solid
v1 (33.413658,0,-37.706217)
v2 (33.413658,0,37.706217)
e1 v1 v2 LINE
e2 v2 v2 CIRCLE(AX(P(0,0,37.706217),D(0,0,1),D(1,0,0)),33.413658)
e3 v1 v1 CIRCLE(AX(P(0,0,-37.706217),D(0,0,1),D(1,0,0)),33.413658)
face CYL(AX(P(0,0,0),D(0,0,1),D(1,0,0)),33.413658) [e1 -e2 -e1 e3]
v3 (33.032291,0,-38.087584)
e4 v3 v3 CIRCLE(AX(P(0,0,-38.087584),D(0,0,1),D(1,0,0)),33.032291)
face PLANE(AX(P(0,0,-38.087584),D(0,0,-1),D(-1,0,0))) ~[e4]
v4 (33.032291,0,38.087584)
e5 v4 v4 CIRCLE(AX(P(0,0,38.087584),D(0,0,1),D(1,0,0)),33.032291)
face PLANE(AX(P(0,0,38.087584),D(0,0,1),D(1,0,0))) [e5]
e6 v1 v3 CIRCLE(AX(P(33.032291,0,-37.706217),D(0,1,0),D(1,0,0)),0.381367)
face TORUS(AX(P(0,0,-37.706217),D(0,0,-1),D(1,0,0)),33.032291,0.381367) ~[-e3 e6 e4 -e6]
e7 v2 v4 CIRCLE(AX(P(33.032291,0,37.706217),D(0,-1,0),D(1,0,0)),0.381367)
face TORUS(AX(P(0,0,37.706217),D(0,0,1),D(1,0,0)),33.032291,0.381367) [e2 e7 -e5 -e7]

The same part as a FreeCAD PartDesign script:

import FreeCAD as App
import Part
import Sketcher
from FreeCAD import Vector
Q = App.Units.Quantity


def edges_at(feature, points):
    """Names of the edges that pass closest to the given points."""
    edges = feature.Shape.Edges
    near = lambda p: min(range(len(edges)), key=lambda i: edges[i].distToShape(Part.Vertex(*p))[0])
    return sorted({f"Edge{near(p) + 1}" for p in points})

doc = App.newDocument("Part")
body = doc.addObject("PartDesign::Body", "Body")

sketch1 = doc.addObject("Sketcher::SketchObject", "Sketch")
body.addObject(sketch1)
sketch1.AttachmentSupport = (doc.XY_Plane, [""])
sketch1.MapMode = "FlatFace"
sketch1.addGeometry(Part.Circle(Vector(0, 0, 0), Vector(0, 0, 1), 33), False)
sketch1.addConstraint(Sketcher.Constraint("Coincident", 0, 3, -1, 1))
sketch1.addConstraint(Sketcher.Constraint("Diameter", 0, Q("66.827316 mm")))
pad1 = doc.addObject("PartDesign::Pad", "Pad")
body.addObject(pad1)
pad1.Profile = sketch1
pad1.Length = 38.087584
body2 = doc.addObject("PartDesign::Body", "Body001")
doc.recompute()

body2.BaseFeature = body
doc.recompute()

mirroring = doc.addObject("Part::Mirroring", "Mirroring")
mirroring.Source = body
mirroring.Base = Vector(0, 0, 0)
mirroring.Normal = Vector(0, 0, 1)
body3 = doc.addObject("PartDesign::Body", "Body002")
body3.BaseFeature = mirroring
boolean = doc.addObject("PartDesign::Boolean", "Boolean")
body2.addObject(boolean)
boolean.Type = "Fuse"
boolean.addObjects([body3])
doc.recompute()

fillet = doc.addObject("PartDesign::Fillet", "Fillet")
body2.addObject(fillet)
fillet.Base = (boolean, edges_at(boolean, [(-33.414, 0, -38.088), (-33.414, 0, 38.088)]))
fillet.Radius = 0.381367
mirroring.Visibility = False

doc.recompute()
